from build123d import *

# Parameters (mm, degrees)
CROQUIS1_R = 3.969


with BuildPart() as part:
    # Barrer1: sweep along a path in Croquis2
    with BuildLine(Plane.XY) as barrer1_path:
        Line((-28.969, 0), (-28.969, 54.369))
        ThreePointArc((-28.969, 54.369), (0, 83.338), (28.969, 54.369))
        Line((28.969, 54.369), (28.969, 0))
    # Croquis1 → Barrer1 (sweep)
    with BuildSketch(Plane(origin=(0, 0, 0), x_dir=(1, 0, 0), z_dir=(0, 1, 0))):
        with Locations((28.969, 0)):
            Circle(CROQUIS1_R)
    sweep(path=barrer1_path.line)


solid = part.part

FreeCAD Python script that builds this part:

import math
import FreeCAD as App
import Part
import Sketcher
from FreeCAD import Vector
Q = App.Units.Quantity

doc = App.newDocument("Part")
body = doc.addObject("PartDesign::Body", "Body")

sketch1 = doc.addObject("Sketcher::SketchObject", "Sketch")
body.addObject(sketch1)
sketch1.AttachmentSupport = (doc.XZ_Plane, [""])
sketch1.MapMode = "FlatFace"
sketch1.addGeometry(Part.Circle(Vector(28.969, 0, 0), Vector(0, 0, 1), 3.969), False)
sketch1.addConstraint(Sketcher.Constraint("PointOnObject", 0, 3, -1))
sketch1.addConstraint(Sketcher.Constraint("Diameter", 0, Q("7.938 mm")))
sketch1.addConstraint(Sketcher.Constraint("DistanceX", -1, 1, 0, 3, Q("28.969 mm")))

sketch2 = doc.addObject("Sketcher::SketchObject", "Sketch001")
body.addObject(sketch2)
sketch2.AttachmentSupport = (doc.XY_Plane, [""])
sketch2.MapMode = "FlatFace"
sketch2.addGeometry(Part.LineSegment(Vector(-28.969, 0, 0), Vector(-28.969, 54.369, 0)), False)
sketch2.addGeometry(Part.ArcOfCircle(Part.Circle(Vector(0, 54.369, 0), Vector(0, 0, 1), 28.969), math.radians(0), math.radians(180)), False)
sketch2.addGeometry(Part.LineSegment(Vector(28.969, 54.369, 0), Vector(28.969, 0, 0)), False)
sketch2.addConstraint(Sketcher.Constraint("Tangent", 0, 2, 1, 2))
sketch2.addConstraint(Sketcher.Constraint("Tangent", 1, 1, 2, 1))
sketch2.addConstraint(Sketcher.Constraint("Vertical", 0))
sketch2.addConstraint(Sketcher.Constraint("Vertical", 2))
sketch2.addConstraint(Sketcher.Constraint("Symmetric", 0, 1, 2, 2, -1, 1))
sketch2.addConstraint(Sketcher.Constraint("PointOnObject", 0, 1, -1))
sketch2.addConstraint(Sketcher.Constraint("Radius", 1, Q("28.969 mm")))
sketch2.addConstraint(Sketcher.Constraint("DistanceY", 0, 1, 0, 2, Q("54.369 mm")))
doc.recompute()

additivepipe = doc.addObject("PartDesign::AdditivePipe", "AdditivePipe")
body.addObject(additivepipe)
additivepipe.Profile = sketch1
additivepipe.Spine = (sketch2, ["Edge1", "Edge2", "Edge3"])

doc.recompute()
